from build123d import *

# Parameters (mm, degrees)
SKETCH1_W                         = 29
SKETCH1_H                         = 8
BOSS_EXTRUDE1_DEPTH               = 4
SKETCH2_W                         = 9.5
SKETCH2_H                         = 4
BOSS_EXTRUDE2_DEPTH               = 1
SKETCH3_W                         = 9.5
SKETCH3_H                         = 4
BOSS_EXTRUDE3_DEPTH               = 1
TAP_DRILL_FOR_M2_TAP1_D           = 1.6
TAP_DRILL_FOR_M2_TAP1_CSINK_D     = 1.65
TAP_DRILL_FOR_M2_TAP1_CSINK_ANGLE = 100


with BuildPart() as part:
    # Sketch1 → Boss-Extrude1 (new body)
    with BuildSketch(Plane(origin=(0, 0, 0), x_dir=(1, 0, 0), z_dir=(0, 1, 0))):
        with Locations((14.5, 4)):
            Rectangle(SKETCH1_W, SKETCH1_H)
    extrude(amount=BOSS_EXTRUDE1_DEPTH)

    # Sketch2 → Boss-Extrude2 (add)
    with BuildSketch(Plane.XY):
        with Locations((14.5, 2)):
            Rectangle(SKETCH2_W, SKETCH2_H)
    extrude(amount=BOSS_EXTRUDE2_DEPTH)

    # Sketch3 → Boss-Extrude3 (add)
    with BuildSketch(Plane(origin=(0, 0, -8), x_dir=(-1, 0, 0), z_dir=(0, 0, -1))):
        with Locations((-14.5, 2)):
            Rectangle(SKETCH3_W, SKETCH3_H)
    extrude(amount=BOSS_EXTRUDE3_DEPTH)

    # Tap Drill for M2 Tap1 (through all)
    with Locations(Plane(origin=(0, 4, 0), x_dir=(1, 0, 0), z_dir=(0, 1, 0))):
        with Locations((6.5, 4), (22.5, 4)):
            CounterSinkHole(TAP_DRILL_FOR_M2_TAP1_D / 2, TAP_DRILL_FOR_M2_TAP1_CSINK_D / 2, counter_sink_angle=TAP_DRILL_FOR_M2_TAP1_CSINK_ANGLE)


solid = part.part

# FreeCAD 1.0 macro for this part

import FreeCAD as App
import Part
import Sketcher
from FreeCAD import Vector


def add_polygon(sketch, points):
    """Adds a closed chain of lines whose ends are joined by coincident constraints."""
    first, n = sketch.GeometryCount, len(points)
    for a, b in zip(points, points[1:] + points[:1]):
        sketch.addGeometry(Part.LineSegment(App.Vector(*a, 0), App.Vector(*b, 0)), False)
    for i in range(n):
        sketch.addConstraint(Sketcher.Constraint("Coincident", first + i, 2, first + (i + 1) % n, 1))

doc = App.newDocument("Part")
params = doc.addObject("Spreadsheet::Sheet", "Params")
for row, (alias, value) in enumerate([
    ("sketch1_width", "29 mm"),
    ("sketch1_height", "8 mm"),
    ("pad1_length", "4 mm"),
    ("sketch2_height", "4 mm"),
    ("sketch2_width", "9.5 mm"),
    ("pad2_length", "1 mm"),
    ("sketch3_height", "4 mm"),
    ("sketch3_width", "9.5 mm"),
    ("pad3_length", "1 mm"),
    ("sketch4_diameter", "1.6 mm"),
    ("hole_diameter", "1.6 mm"),
    ("hole_csink_diameter", "1.65 mm"),
], start=1):
    params.set(f"A{row}", alias)
    params.set(f"B{row}", "=" + value)
    params.setAlias(f"B{row}", alias)

body = doc.addObject("PartDesign::Body", "Body")

sketch1 = body.newObject("Sketcher::SketchObject", "Sketch")
sketch1.AttachmentSupport = (doc.getObject("XZ_Plane"), [""])
sketch1.MapMode = "FlatFace"
add_polygon(sketch1, [(0, -8), (0, 0), (29, 0), (29, -8)])
sketch1.addConstraint(Sketcher.Constraint("Vertical", 0))
sketch1.addConstraint(Sketcher.Constraint("Horizontal", 1))
sketch1.addConstraint(Sketcher.Constraint("Vertical", 2))
sketch1.addConstraint(Sketcher.Constraint("Horizontal", 3))
sketch1.addConstraint(Sketcher.Constraint("Coincident", 0, 2, -1, 1))
sketch1.addConstraint(Sketcher.Constraint("DistanceX", 1, 1, 1, 2, 29.0))
sketch1.addConstraint(Sketcher.Constraint("DistanceY", 0, 1, 0, 2, 8.0))
sketch1.setExpression("Constraints[9]", "Params.sketch1_width")
sketch1.setExpression("Constraints[10]", "Params.sketch1_height")
pad1 = body.newObject("PartDesign::Pad", "Pad")
pad1.Profile = sketch1
pad1.setExpression("Length", "Params.pad1_length")
pad1.Reversed = True

sketch2 = body.newObject("Sketcher::SketchObject", "Sketch001")
sketch2.AttachmentSupport = (doc.getObject("XY_Plane"), [""])
sketch2.MapMode = "FlatFace"
add_polygon(sketch2, [(9.8, 4), (9.8, 0), (19.2, 0), (19.2, 4)])
sketch2.addConstraint(Sketcher.Constraint("Vertical", 0))
sketch2.addConstraint(Sketcher.Constraint("Horizontal", 1))
sketch2.addConstraint(Sketcher.Constraint("Vertical", 2))
sketch2.addConstraint(Sketcher.Constraint("Horizontal", 3))
sketch2.addConstraint(Sketcher.Constraint("PointOnObject", 0, 2, -1))
sketch2.addConstraint(Sketcher.Constraint("DistanceY", 0, 2, 0, 1, 4.0))
sketch2.addConstraint(Sketcher.Constraint("DistanceX", 1, 1, 1, 2, 9.5))
sketch2.addConstraint(Sketcher.Constraint("DistanceX", -1, 1, 0, 2, 9.75))
sketch2.setExpression("Constraints[9]", "Params.sketch2_height")
sketch2.setExpression("Constraints[10]", "Params.sketch2_width")
pad2 = body.newObject("PartDesign::Pad", "Pad001")
pad2.Profile = sketch2
pad2.setExpression("Length", "Params.pad2_length")

sketch3 = body.newObject("Sketcher::SketchObject", "Sketch002")
sketch3.AttachmentSupport = (doc.getObject("XY_Plane"), [""])
sketch3.MapMode = "FlatFace"
sketch3.AttachmentOffset = App.Placement(Vector(0, 0, -8), App.Rotation())
add_polygon(sketch3, [(19.2, 4), (19.2, 0), (9.8, 0), (9.8, 4)])
sketch3.addConstraint(Sketcher.Constraint("Vertical", 0))
sketch3.addConstraint(Sketcher.Constraint("Horizontal", 1))
sketch3.addConstraint(Sketcher.Constraint("Vertical", 2))
sketch3.addConstraint(Sketcher.Constraint("Horizontal", 3))
sketch3.addConstraint(Sketcher.Constraint("PointOnObject", 0, 2, -1))
sketch3.addConstraint(Sketcher.Constraint("DistanceY", 0, 2, 0, 1, 4.0))
sketch3.addConstraint(Sketcher.Constraint("DistanceX", 1, 2, 1, 1, 9.5))
sketch3.addConstraint(Sketcher.Constraint("DistanceX", -1, 1, 0, 2, 19.25))
sketch3.setExpression("Constraints[9]", "Params.sketch3_height")
sketch3.setExpression("Constraints[10]", "Params.sketch3_width")
pad3 = body.newObject("PartDesign::Pad", "Pad002")
pad3.Profile = sketch3
pad3.setExpression("Length", "Params.pad3_length")
pad3.Reversed = True

sketch4 = body.newObject("Sketcher::SketchObject", "Sketch003")
sketch4.AttachmentSupport = (doc.getObject("XZ_Plane"), [""])
sketch4.MapMode = "FlatFace"
sketch4.AttachmentOffset = App.Placement(Vector(0, 0, -4), App.Rotation())
sketch4.addGeometry(Part.Circle(Vector(6.5, -4, 0), Vector(0, 0, 1), 0.8), False)
sketch4.addGeometry(Part.Circle(Vector(22.5, -4, 0), Vector(0, 0, 1), 0.8), False)
sketch4.addConstraint(Sketcher.Constraint("Equal", 0, 1))
sketch4.addConstraint(Sketcher.Constraint("Horizontal", 0, 3, 1, 3))
sketch4.addConstraint(Sketcher.Constraint("Diameter", 0, 1.6))
sketch4.addConstraint(Sketcher.Constraint("DistanceY", 0, 3, -1, 1, 4.0))
sketch4.addConstraint(Sketcher.Constraint("DistanceX", 0, 3, 1, 3, 16.0))
sketch4.addConstraint(Sketcher.Constraint("DistanceX", -1, 1, 0, 3, 6.5))
sketch4.setExpression("Constraints[2]", "Params.sketch4_diameter")
doc.recompute()
hole = body.newObject("PartDesign::Hole", "Hole")
hole.Profile = sketch4
hole.ThreadType = "None"
hole.setExpression("Diameter", "Params.hole_diameter")
hole.DepthType = "ThroughAll"
hole.HoleCutType = "Countersink"
hole.setExpression("HoleCutDiameter", "Params.hole_csink_diameter")
hole.HoleCutCountersinkAngle = 100
hole.Reversed = True

doc.recompute()
